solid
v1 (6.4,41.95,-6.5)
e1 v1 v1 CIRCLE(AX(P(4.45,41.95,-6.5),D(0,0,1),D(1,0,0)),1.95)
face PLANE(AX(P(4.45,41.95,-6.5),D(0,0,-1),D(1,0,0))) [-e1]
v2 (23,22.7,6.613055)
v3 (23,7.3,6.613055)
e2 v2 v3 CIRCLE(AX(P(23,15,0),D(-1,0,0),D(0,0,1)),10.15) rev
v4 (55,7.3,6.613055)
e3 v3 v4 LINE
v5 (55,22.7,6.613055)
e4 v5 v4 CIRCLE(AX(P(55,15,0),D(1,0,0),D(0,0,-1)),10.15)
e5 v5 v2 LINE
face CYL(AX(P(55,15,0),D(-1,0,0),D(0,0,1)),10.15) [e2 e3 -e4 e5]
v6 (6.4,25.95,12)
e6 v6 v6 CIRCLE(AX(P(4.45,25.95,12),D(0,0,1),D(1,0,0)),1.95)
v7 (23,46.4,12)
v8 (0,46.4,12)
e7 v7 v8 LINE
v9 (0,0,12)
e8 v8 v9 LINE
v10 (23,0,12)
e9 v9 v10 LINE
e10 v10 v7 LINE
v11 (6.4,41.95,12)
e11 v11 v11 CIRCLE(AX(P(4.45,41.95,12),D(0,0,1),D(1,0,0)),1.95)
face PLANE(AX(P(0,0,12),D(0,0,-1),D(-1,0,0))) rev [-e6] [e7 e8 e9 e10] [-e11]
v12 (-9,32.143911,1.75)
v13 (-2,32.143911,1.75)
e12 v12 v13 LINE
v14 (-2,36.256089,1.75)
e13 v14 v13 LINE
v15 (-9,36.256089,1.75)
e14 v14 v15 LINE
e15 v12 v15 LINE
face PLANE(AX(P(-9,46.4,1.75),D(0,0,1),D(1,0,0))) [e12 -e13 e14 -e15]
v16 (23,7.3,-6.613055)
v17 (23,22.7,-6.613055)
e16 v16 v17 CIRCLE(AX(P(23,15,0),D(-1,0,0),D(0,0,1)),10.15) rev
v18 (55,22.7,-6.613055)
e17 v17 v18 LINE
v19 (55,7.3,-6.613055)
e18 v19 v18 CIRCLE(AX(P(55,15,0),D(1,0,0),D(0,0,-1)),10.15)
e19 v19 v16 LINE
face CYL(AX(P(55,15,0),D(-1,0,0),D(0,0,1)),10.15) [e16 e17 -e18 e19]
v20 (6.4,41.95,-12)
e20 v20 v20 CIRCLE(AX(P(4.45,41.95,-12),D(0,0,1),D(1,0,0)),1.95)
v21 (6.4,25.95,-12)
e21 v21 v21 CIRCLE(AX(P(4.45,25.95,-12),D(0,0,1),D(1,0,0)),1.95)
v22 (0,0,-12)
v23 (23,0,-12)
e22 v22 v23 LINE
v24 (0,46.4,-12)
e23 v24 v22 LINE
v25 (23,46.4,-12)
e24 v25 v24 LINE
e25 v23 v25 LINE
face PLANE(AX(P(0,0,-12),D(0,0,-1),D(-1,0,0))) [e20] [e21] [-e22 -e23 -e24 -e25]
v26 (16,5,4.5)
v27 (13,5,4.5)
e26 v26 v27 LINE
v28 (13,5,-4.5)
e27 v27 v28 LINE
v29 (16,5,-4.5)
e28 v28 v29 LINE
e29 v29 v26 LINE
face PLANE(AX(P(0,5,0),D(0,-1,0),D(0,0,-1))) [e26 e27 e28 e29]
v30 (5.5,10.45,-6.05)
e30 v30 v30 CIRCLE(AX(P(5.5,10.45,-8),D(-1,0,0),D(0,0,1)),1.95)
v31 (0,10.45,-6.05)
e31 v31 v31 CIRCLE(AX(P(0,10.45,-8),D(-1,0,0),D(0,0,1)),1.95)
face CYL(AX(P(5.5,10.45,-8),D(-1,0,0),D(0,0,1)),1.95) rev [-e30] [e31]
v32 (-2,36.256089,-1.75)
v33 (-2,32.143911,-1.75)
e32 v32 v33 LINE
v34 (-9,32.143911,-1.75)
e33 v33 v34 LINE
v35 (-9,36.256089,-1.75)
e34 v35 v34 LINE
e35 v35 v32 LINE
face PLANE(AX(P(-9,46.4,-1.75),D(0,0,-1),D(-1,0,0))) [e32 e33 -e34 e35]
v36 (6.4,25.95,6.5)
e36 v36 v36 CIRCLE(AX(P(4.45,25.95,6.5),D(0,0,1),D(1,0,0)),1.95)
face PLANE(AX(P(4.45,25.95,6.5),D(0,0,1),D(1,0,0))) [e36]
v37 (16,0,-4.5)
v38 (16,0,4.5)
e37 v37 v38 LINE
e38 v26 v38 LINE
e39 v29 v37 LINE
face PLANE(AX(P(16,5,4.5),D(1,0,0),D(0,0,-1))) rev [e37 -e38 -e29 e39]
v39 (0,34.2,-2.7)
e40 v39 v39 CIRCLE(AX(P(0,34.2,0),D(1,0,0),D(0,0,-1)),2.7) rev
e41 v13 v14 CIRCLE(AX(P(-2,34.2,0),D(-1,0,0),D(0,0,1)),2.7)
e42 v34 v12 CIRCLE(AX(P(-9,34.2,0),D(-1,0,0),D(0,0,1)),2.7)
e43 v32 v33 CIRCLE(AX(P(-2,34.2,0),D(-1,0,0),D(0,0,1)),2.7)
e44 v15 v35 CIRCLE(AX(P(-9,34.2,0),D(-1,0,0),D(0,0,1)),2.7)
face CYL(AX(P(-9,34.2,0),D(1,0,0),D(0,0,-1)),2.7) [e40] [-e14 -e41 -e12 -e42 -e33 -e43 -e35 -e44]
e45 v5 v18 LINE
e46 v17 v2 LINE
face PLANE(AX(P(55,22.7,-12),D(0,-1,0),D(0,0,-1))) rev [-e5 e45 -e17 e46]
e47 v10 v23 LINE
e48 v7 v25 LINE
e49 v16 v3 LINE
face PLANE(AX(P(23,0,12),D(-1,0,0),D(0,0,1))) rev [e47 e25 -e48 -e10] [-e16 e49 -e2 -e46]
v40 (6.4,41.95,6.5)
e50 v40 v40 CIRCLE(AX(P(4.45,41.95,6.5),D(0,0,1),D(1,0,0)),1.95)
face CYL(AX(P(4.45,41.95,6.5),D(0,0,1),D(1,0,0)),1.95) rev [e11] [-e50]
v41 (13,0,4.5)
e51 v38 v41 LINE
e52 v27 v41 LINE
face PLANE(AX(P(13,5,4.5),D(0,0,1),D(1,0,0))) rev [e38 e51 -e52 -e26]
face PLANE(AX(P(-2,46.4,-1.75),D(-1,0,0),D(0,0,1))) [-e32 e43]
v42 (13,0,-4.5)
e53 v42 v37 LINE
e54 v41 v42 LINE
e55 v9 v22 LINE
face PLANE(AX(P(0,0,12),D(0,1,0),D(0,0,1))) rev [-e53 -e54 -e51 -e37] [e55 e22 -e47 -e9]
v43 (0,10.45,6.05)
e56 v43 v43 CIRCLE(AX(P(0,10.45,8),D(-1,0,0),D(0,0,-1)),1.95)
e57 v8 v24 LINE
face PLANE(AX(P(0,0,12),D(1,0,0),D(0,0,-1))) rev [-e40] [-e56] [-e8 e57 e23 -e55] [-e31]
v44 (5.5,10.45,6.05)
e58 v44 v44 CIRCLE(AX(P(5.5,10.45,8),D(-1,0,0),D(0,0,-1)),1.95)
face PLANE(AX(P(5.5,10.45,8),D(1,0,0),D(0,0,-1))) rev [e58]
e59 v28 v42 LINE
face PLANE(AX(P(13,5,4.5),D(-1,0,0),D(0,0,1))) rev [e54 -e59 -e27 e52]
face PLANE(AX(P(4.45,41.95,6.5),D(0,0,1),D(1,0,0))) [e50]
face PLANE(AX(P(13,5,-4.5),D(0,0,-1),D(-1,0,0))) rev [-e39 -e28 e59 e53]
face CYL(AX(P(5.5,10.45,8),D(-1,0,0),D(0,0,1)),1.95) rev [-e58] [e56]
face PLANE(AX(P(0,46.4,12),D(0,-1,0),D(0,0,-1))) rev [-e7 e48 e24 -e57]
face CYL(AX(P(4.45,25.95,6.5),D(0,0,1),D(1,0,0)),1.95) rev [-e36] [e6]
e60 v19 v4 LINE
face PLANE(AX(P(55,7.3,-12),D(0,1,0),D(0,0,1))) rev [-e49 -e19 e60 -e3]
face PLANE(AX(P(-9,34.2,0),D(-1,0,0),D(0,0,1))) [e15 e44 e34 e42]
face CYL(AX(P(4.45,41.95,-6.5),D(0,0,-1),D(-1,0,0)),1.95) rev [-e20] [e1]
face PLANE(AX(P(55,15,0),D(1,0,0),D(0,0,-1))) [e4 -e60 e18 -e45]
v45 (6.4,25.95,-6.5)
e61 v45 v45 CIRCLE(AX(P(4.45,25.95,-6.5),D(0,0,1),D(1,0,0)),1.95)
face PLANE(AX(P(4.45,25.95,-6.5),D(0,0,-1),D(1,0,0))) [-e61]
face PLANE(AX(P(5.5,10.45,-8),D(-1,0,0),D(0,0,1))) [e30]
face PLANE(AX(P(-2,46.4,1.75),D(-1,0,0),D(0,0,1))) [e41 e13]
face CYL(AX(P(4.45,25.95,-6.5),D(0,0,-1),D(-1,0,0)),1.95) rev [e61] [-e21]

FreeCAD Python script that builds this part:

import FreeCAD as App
import Part
import Sketcher
Q = App.Units.Quantity

doc = App.newDocument("Part")
params = doc.addObject("Spreadsheet::Sheet", "Params")
for row, (alias, value) in enumerate([
    ("sketch1_width", "23 mm"),
    ("sketch1_height", "46.4 mm"),
    ("pad1_length", "24 mm"),
    ("sketch2_diameter", "3.9 mm"),
    ("pocket1_length", "5.5 mm"),
    ("sketch3_diameter", "5.4 mm"),
    ("pad2_length", "9 mm"),
    ("sketch4_width", "7 mm"),
    ("sketch4_height", "0.95 mm"),
    ("sketch5_diameter", "3.9 mm"),
    ("pocket3_length", "5.5 mm"),
    ("sketch6_diameter", "20.3 mm"),
    ("pad3_length", "32 mm"),
    ("sketch7_width", "32 mm"),
    ("sketch7_height", "2.45 mm"),
    ("sketch8_width", "3 mm"),
    ("sketch8_height", "9 mm"),
    ("pocket5_length", "5 mm"),
], start=1):
    params.set(f"A{row}", alias)
    params.set(f"B{row}", "=" + value)
    params.setAlias(f"B{row}", alias)

body = doc.addObject("PartDesign::Body", "Body")

# Sketch on XY plane
sketch1 = body.newObject("Sketcher::SketchObject", "Sketch")
sketch1.AttachmentSupport = (doc.getObject("XY_Plane"), [""])
sketch1.MapMode = "FlatFace"
sketch1.addGeometry([
    Part.LineSegment(App.Vector(0, 46, 0), App.Vector(0, 0, 0)),
    Part.LineSegment(App.Vector(0, 0, 0), App.Vector(23, 0, 0)),
    Part.LineSegment(App.Vector(23, 0, 0), App.Vector(23, 46, 0)),
    Part.LineSegment(App.Vector(23, 46, 0), App.Vector(0, 46, 0)),
], False)
sketch1.addConstraint([
    Sketcher.Constraint("Coincident", 0, 2, 1, 1),
    Sketcher.Constraint("Coincident", 1, 2, 2, 1),
    Sketcher.Constraint("Coincident", 2, 2, 3, 1),
    Sketcher.Constraint("Coincident", 3, 2, 0, 1),
    Sketcher.Constraint("Vertical", 0),
    Sketcher.Constraint("Horizontal", 1),
    Sketcher.Constraint("Vertical", 2),
    Sketcher.Constraint("Horizontal", 3),
    Sketcher.Constraint("Coincident", 0, 2, -1, 1),
    Sketcher.Constraint("DistanceX", 1, 1, 1, 2, Q("23 mm")),
    Sketcher.Constraint("DistanceY", 0, 2, 0, 1, Q("46.4 mm")),
])
sketch1.setExpression("Constraints[9]", "Params.sketch1_width")
sketch1.setExpression("Constraints[10]", "Params.sketch1_height")
pad1 = body.newObject("PartDesign::Pad", "Pad")
pad1.Profile = sketch1
pad1.setExpression("Length", "Params.pad1_length")
pad1.Midplane = True

# Sketch on XY plane
sketch2 = body.newObject("Sketcher::SketchObject", "Sketch001")
sketch2.AttachmentSupport = (doc.getObject("XY_Plane"), [""])
sketch2.MapMode = "FlatFace"
sketch2.AttachmentOffset = App.Placement(App.Vector(0, 0, 12), App.Rotation())
sketch2.addGeometry([
    Part.Circle(App.Vector(4.5, 42, 0), App.Vector(0, 0, 1), 1.9),
    Part.Circle(App.Vector(4.5, 25.9, 0), App.Vector(0, 0, 1), 1.9),
], False)
sketch2.addConstraint([
    Sketcher.Constraint("Equal", 0, 1),
    Sketcher.Constraint("Vertical", 0, 3, 1, 3),
    Sketcher.Constraint("Diameter", 0, Q("3.9 mm")),
    Sketcher.Constraint("DistanceY", 1, 3, 0, 3, Q("16 mm")),
    Sketcher.Constraint("DistanceX", -1, 1, 0, 3, Q("4.45 mm")),
    Sketcher.Constraint("DistanceY", -1, 1, 0, 3, Q("41.95 mm")),
])
sketch2.setExpression("Constraints[2]", "Params.sketch2_diameter")
pocket1 = body.newObject("PartDesign::Pocket", "Pocket")
pocket1.Profile = sketch2
pocket1.setExpression("Length", "Params.pocket1_length")
doc.recompute()

mirrored = body.newObject("PartDesign::Mirrored", "Mirrored")
mirrored.Originals = [pocket1]
mirrored.MirrorPlane = (doc.getObject("XY_Plane"), [""])
body.Tip = mirrored

# Sketch on YZ plane
sketch3 = body.newObject("Sketcher::SketchObject", "Sketch002")
sketch3.AttachmentSupport = (doc.getObject("YZ_Plane"), [""])
sketch3.MapMode = "FlatFace"
sketch3.addGeometry(Part.Circle(App.Vector(34.2, 0, 0), App.Vector(0, 0, 1), 2.7), False)
sketch3.addConstraint([
    Sketcher.Constraint("PointOnObject", 0, 3, -1),
    Sketcher.Constraint("Diameter", 0, Q("5.4 mm")),
    Sketcher.Constraint("DistanceX", -1, 1, 0, 3, Q("34.2 mm")),
])
sketch3.setExpression("Constraints[1]", "Params.sketch3_diameter")
pad2 = body.newObject("PartDesign::Pad", "Pad001")
pad2.Profile = sketch3
pad2.setExpression("Length", "Params.pad2_length")
pad2.Reversed = True

# Sketch on XZ plane
sketch4 = body.newObject("Sketcher::SketchObject", "Sketch003")
sketch4.AttachmentSupport = (doc.getObject("XZ_Plane"), [""])
sketch4.MapMode = "FlatFace"
sketch4.addGeometry([
    Part.LineSegment(App.Vector(-9, -2.7, 0), App.Vector(-9, -1.8, 0)),  # 0
    Part.LineSegment(App.Vector(-9, -1.8, 0), App.Vector(-2, -1.8, 0)),  # 1
    Part.LineSegment(App.Vector(-2, -1.8, 0), App.Vector(-2, -2.7, 0)),  # 2
    Part.LineSegment(App.Vector(-2, -2.7, 0), App.Vector(-9, -2.7, 0)),  # 3
    Part.LineSegment(App.Vector(-9, 1.8, 0), App.Vector(-9, 2.7, 0)),  # 4
    Part.LineSegment(App.Vector(-9, 2.7, 0), App.Vector(-2, 2.7, 0)),  # 5
    Part.LineSegment(App.Vector(-2, 2.7, 0), App.Vector(-2, 1.8, 0)),  # 6
    Part.LineSegment(App.Vector(-2, 1.8, 0), App.Vector(-9, 1.8, 0)),  # 7
], False)
sketch4.addConstraint([
    Sketcher.Constraint("Coincident", 0, 2, 1, 1),
    Sketcher.Constraint("Coincident", 1, 2, 2, 1),
    Sketcher.Constraint("Coincident", 2, 2, 3, 1),
    Sketcher.Constraint("Coincident", 3, 2, 0, 1),
    Sketcher.Constraint("Coincident", 4, 2, 5, 1),
    Sketcher.Constraint("Coincident", 5, 2, 6, 1),
    Sketcher.Constraint("Coincident", 6, 2, 7, 1),
    Sketcher.Constraint("Coincident", 7, 2, 4, 1),
    Sketcher.Constraint("Vertical", 0),
    Sketcher.Constraint("Horizontal", 1),
    Sketcher.Constraint("Vertical", 2),
    Sketcher.Constraint("Horizontal", 3),
    Sketcher.Constraint("Vertical", 4),
    Sketcher.Constraint("Horizontal", 5),
    Sketcher.Constraint("Vertical", 6),
    Sketcher.Constraint("Horizontal", 7),
    Sketcher.Constraint("Symmetric", 3, 2, 4, 2, -1),
    Sketcher.Constraint("Symmetric", 1, 2, 6, 2, -1),
    Sketcher.Constraint("DistanceX", 1, 1, 1, 2, Q("7 mm")),
    Sketcher.Constraint("DistanceX", 0, 2, -1, 1, Q("9 mm")),
    Sketcher.Constraint("DistanceY", 0, 1, 0, 2, Q("0.95 mm")),
    Sketcher.Constraint("DistanceY", 2, 2, -1, 1, Q("2.7 mm")),
])
sketch4.setExpression("Constraints[18]", "Params.sketch4_width")
sketch4.setExpression("Constraints[20]", "Params.sketch4_height")
pocket2 = body.newObject("PartDesign::Pocket", "Pocket001")
pocket2.Profile = sketch4
pocket2.Type = "ThroughAll"

# Sketch on YZ plane
sketch5 = body.newObject("Sketcher::SketchObject", "Sketch004")
sketch5.AttachmentSupport = (doc.getObject("YZ_Plane"), [""])
sketch5.MapMode = "FlatFace"
sketch5.addGeometry([
    Part.Circle(App.Vector(10.4, -8, 0), App.Vector(0, 0, 1), 1.9),
    Part.Circle(App.Vector(10.4, 8, 0), App.Vector(0, 0, 1), 1.9),
], False)
sketch5.addConstraint([
    Sketcher.Constraint("Equal", 0, 1),
    Sketcher.Constraint("Symmetric", 0, 3, 1, 3, -1),
    Sketcher.Constraint("Diameter", 0, Q("3.9 mm")),
    Sketcher.Constraint("DistanceY", 0, 3, -1, 1, Q("8 mm")),
    Sketcher.Constraint("DistanceX", -1, 1, 0, 3, Q("10.45 mm")),
])
sketch5.setExpression("Constraints[2]", "Params.sketch5_diameter")
pocket3 = body.newObject("PartDesign::Pocket", "Pocket002")
pocket3.Profile = sketch5
pocket3.setExpression("Length", "Params.pocket3_length")
pocket3.Reversed = True

# Sketch on YZ plane
sketch6 = body.newObject("Sketcher::SketchObject", "Sketch005")
sketch6.AttachmentSupport = (doc.getObject("YZ_Plane"), [""])
sketch6.MapMode = "FlatFace"
sketch6.AttachmentOffset = App.Placement(App.Vector(0, 0, 23), App.Rotation())
sketch6.addGeometry(Part.Circle(App.Vector(15, 0, 0), App.Vector(0, 0, 1), 10), False)
sketch6.addConstraint([
    Sketcher.Constraint("PointOnObject", 0, 3, -1),
    Sketcher.Constraint("Diameter", 0, Q("20.3 mm")),
    Sketcher.Constraint("DistanceX", -1, 1, 0, 3, Q("15 mm")),
])
sketch6.setExpression("Constraints[1]", "Params.sketch6_diameter")
pad3 = body.newObject("PartDesign::Pad", "Pad002")
pad3.Profile = sketch6
pad3.setExpression("Length", "Params.pad3_length")

# Sketch on XY plane
sketch7 = body.newObject("Sketcher::SketchObject", "Sketch006")
sketch7.AttachmentSupport = (doc.getObject("XY_Plane"), [""])
sketch7.MapMode = "FlatFace"
sketch7.addGeometry([
    Part.LineSegment(App.Vector(23, 25.1, 0), App.Vector(23, 22.7, 0)),  # 0
    Part.LineSegment(App.Vector(23, 22.7, 0), App.Vector(55, 22.7, 0)),  # 1
    Part.LineSegment(App.Vector(55, 22.7, 0), App.Vector(55, 25.1, 0)),  # 2
    Part.LineSegment(App.Vector(55, 25.1, 0), App.Vector(23, 25.1, 0)),  # 3
    Part.LineSegment(App.Vector(23, 7.3, 0), App.Vector(23, 4.8, 0)),  # 4
    Part.LineSegment(App.Vector(23, 4.8, 0), App.Vector(55, 4.8, 0)),  # 5
    Part.LineSegment(App.Vector(55, 4.8, 0), App.Vector(55, 7.3, 0)),  # 6
    Part.LineSegment(App.Vector(55, 7.3, 0), App.Vector(23, 7.3, 0)),  # 7
], False)
sketch7.addConstraint([
    Sketcher.Constraint("Coincident", 0, 2, 1, 1),
    Sketcher.Constraint("Coincident", 1, 2, 2, 1),
    Sketcher.Constraint("Coincident", 2, 2, 3, 1),
    Sketcher.Constraint("Coincident", 3, 2, 0, 1),
    Sketcher.Constraint("Coincident", 4, 2, 5, 1),
    Sketcher.Constraint("Coincident", 5, 2, 6, 1),
    Sketcher.Constraint("Coincident", 6, 2, 7, 1),
    Sketcher.Constraint("Coincident", 7, 2, 4, 1),
    Sketcher.Constraint("Vertical", 0),
    Sketcher.Constraint("Horizontal", 1),
    Sketcher.Constraint("Vertical", 2),
    Sketcher.Constraint("Horizontal", 3),
    Sketcher.Constraint("Vertical", 4),
    Sketcher.Constraint("Horizontal", 5),
    Sketcher.Constraint("Vertical", 6),
    Sketcher.Constraint("Horizontal", 7),
    Sketcher.Constraint("Vertical", 3, 2, 4, 2),
    Sketcher.Constraint("Vertical", 2, 2, 5, 2),
    Sketcher.Constraint("Equal", 2, 4),
    Sketcher.Constraint("DistanceX", 1, 1, 1, 2, Q("32 mm")),
    Sketcher.Constraint("DistanceX", -1, 1, 0, 2, Q("23 mm")),
    Sketcher.Constraint("DistanceY", 0, 2, 0, 1, Q("2.45 mm")),
    Sketcher.Constraint("DistanceY", -1, 1, 0, 2, Q("22.7 mm")),
    Sketcher.Constraint("DistanceY", -1, 1, 6, 2, Q("7.3 mm")),
])
sketch7.setExpression("Constraints[19]", "Params.sketch7_width")
sketch7.setExpression("Constraints[21]", "Params.sketch7_height")
pocket4 = body.newObject("PartDesign::Pocket", "Pocket003")
pocket4.Profile = sketch7
pocket4.Type = "ThroughAll"
pocket4.Midplane = True

# Sketch on XZ plane
sketch8 = body.newObject("Sketcher::SketchObject", "Sketch007")
sketch8.AttachmentSupport = (doc.getObject("XZ_Plane"), [""])
sketch8.MapMode = "FlatFace"
sketch8.addGeometry([
    Part.LineSegment(App.Vector(13, 4.5, 0), App.Vector(13, -4.5, 0)),
    Part.LineSegment(App.Vector(13, -4.5, 0), App.Vector(16, -4.5, 0)),
    Part.LineSegment(App.Vector(16, -4.5, 0), App.Vector(16, 4.5, 0)),
    Part.LineSegment(App.Vector(16, 4.5, 0), App.Vector(13, 4.5, 0)),
], False)
sketch8.addConstraint([
    Sketcher.Constraint("Coincident", 0, 2, 1, 1),
    Sketcher.Constraint("Coincident", 1, 2, 2, 1),
    Sketcher.Constraint("Coincident", 2, 2, 3, 1),
    Sketcher.Constraint("Coincident", 3, 2, 0, 1),
    Sketcher.Constraint("Vertical", 0),
    Sketcher.Constraint("Horizontal", 1),
    Sketcher.Constraint("Vertical", 2),
    Sketcher.Constraint("Horizontal", 3),
    Sketcher.Constraint("DistanceX", 1, 1, 1, 2, Q("3 mm")),
    Sketcher.Constraint("DistanceY", 0, 2, 0, 1, Q("9 mm")),
    Sketcher.Constraint("DistanceX", -1, 1, 0, 2, Q("13 mm")),
    Sketcher.Constraint("DistanceY", 0, 2, -1, 1, Q("4.5 mm")),
])
sketch8.setExpression("Constraints[8]", "Params.sketch8_width")
sketch8.setExpression("Constraints[9]", "Params.sketch8_height")
pocket5 = body.newObject("PartDesign::Pocket", "Pocket004")
pocket5.Profile = sketch8
pocket5.setExpression("Length", "Params.pocket5_length")

doc.recompute()
